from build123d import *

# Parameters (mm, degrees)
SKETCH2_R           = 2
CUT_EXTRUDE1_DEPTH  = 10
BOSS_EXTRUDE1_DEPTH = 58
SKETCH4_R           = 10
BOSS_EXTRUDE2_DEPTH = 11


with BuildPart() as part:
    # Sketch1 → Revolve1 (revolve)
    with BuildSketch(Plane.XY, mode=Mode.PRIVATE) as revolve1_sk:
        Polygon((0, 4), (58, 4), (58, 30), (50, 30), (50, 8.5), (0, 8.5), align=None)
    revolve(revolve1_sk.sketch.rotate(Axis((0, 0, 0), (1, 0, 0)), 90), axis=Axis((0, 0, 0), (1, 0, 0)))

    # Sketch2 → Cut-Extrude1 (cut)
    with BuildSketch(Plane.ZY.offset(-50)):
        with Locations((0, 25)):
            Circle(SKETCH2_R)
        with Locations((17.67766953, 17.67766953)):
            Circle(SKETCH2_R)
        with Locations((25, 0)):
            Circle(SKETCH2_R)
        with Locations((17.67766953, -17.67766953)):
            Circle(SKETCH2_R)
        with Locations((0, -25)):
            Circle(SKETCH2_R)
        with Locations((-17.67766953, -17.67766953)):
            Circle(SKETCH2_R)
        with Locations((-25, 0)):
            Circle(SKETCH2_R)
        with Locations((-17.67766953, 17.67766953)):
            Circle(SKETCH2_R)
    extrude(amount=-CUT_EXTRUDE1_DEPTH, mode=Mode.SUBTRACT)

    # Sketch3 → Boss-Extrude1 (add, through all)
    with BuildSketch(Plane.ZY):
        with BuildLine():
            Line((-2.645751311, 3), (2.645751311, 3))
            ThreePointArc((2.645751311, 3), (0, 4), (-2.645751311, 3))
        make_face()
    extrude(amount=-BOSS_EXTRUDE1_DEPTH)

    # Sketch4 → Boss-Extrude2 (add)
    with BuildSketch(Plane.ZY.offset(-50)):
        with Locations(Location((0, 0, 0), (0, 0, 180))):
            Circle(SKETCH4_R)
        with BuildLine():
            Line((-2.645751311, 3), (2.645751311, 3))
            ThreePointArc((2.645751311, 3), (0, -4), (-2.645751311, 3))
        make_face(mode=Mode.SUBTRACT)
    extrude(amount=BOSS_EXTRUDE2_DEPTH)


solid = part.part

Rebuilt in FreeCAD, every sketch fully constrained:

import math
import FreeCAD as App
import Part
import Sketcher
from FreeCAD import Vector


def add_polygon(sketch, points):
    """Adds a closed chain of lines whose ends are joined by coincident constraints."""
    first, n = sketch.GeometryCount, len(points)
    for a, b in zip(points, points[1:] + points[:1]):
        sketch.addGeometry(Part.LineSegment(App.Vector(*a, 0), App.Vector(*b, 0)), False)
    for i in range(n):
        sketch.addConstraint(Sketcher.Constraint("Coincident", first + i, 2, first + (i + 1) % n, 1))

doc = App.newDocument("Part")
body = doc.addObject("PartDesign::Body", "Body")

# Sketch on XY plane
sketch1 = body.newObject("Sketcher::SketchObject", "Sketch")
sketch1.AttachmentSupport = (doc.getObject("XY_Plane"), [""])
sketch1.MapMode = "FlatFace"
add_polygon(sketch1, [(0, 4), (58, 4), (58, 30), (50, 30), (50, 8.5), (0, 8.5)])  # lines 0-5
sketch1.addConstraint(Sketcher.Constraint("Horizontal", 0))
sketch1.addConstraint(Sketcher.Constraint("Vertical", 1))
sketch1.addConstraint(Sketcher.Constraint("Horizontal", 2))
sketch1.addConstraint(Sketcher.Constraint("Vertical", 3))
sketch1.addConstraint(Sketcher.Constraint("Horizontal", 4))
sketch1.addConstraint(Sketcher.Constraint("Vertical", 5))
sketch1.addConstraint(Sketcher.Constraint("PointOnObject", 4, 2, -2))
sketch1.addConstraint(Sketcher.Constraint("DistanceX", 0, 1, 0, 2, 58.0))
sketch1.addConstraint(Sketcher.Constraint("DistanceX", 2, 2, 2, 1, 8.0))
sketch1.addConstraint(Sketcher.Constraint("DistanceY", 1, 1, 1, 2, 26.0))
sketch1.addConstraint(Sketcher.Constraint("DistanceY", 3, 2, 3, 1, 21.5))
sketch1.addConstraint(Sketcher.Constraint("DistanceY", -1, 1, 0, 2, 4.0))
revolution = body.newObject("PartDesign::Revolution", "Revolution")
revolution.Profile = sketch1
revolution.ReferenceAxis = (sketch1, ["H_Axis"])
revolution.Angle = 360

# Sketch on YZ plane
sketch2 = body.newObject("Sketcher::SketchObject", "Sketch001")
sketch2.AttachmentSupport = (doc.getObject("YZ_Plane"), [""])
sketch2.MapMode = "FlatFace"
sketch2.AttachmentOffset = App.Placement(Vector(0, 0, 50), App.Rotation())
sketch2.addGeometry(Part.Circle(Vector(25, 0, 0), Vector(0, 0, 1), 2), False)
sketch2.addGeometry(Part.Circle(Vector(17.67767, 17.67767, 0), Vector(0, 0, 1), 2), False)
sketch2.addGeometry(Part.Circle(Vector(0, 25, 0), Vector(0, 0, 1), 2), False)
sketch2.addGeometry(Part.Circle(Vector(-17.67767, 17.67767, 0), Vector(0, 0, 1), 2), False)
sketch2.addGeometry(Part.Circle(Vector(-25, 0, 0), Vector(0, 0, 1), 2), False)
sketch2.addGeometry(Part.Circle(Vector(-17.67767, -17.67767, 0), Vector(0, 0, 1), 2), False)
sketch2.addGeometry(Part.Circle(Vector(0, -25, 0), Vector(0, 0, 1), 2), False)
sketch2.addGeometry(Part.Circle(Vector(17.67767, -17.67767, 0), Vector(0, 0, 1), 2), False)
sketch2.addConstraint(Sketcher.Constraint("Equal", 0, 1))
sketch2.addConstraint(Sketcher.Constraint("Equal", 1, 2))
sketch2.addConstraint(Sketcher.Constraint("Equal", 2, 3))
sketch2.addConstraint(Sketcher.Constraint("Equal", 3, 4))
sketch2.addConstraint(Sketcher.Constraint("Equal", 4, 5))
sketch2.addConstraint(Sketcher.Constraint("Equal", 5, 6))
sketch2.addConstraint(Sketcher.Constraint("Equal", 6, 7))
sketch2.addConstraint(Sketcher.Constraint("Symmetric", 0, 3, 4, 3, -1, 1))
sketch2.addConstraint(Sketcher.Constraint("Symmetric", 1, 3, 5, 3, -1, 1))
sketch2.addConstraint(Sketcher.Constraint("Symmetric", 2, 3, 6, 3, -1, 1))
sketch2.addConstraint(Sketcher.Constraint("Symmetric", 3, 3, 7, 3, -1, 1))
sketch2.addConstraint(Sketcher.Constraint("Symmetric", 1, 3, 3, 3, -2))
sketch2.addConstraint(Sketcher.Constraint("PointOnObject", 0, 3, -1))
sketch2.addConstraint(Sketcher.Constraint("PointOnObject", 2, 3, -2))
sketch2.addConstraint(Sketcher.Constraint("Diameter", 0, 4.0))
sketch2.addConstraint(Sketcher.Constraint("DistanceX", -1, 1, 0, 3, 25.0))
sketch2.addConstraint(Sketcher.Constraint("DistanceY", -1, 1, 2, 3, 25.0))
sketch2.addConstraint(Sketcher.Constraint("DistanceX", -1, 1, 1, 3, 17.67767))
sketch2.addConstraint(Sketcher.Constraint("DistanceY", -1, 1, 1, 3, 17.67767))
pocket1 = body.newObject("PartDesign::Pocket", "Pocket")
pocket1.Profile = sketch2
pocket1.Length = 10
pocket1.Reversed = True

# Sketch on YZ plane
sketch3 = body.newObject("Sketcher::SketchObject", "Sketch002")
sketch3.AttachmentSupport = (doc.getObject("YZ_Plane"), [""])
sketch3.MapMode = "FlatFace"
sketch3.addGeometry(Part.LineSegment(Vector(3, -2.645751, 0), Vector(3, 2.645751, 0)), False)
sketch3.addGeometry(Part.ArcOfCircle(Part.Circle(Vector(0, 0, 0), Vector(0, 0, 1), 4), math.radians(-41.409622), math.radians(41.409622)), False)
sketch3.addConstraint(Sketcher.Constraint("Coincident", 0, 1, 1, 1))
sketch3.addConstraint(Sketcher.Constraint("Coincident", 1, 2, 0, 2))
sketch3.addConstraint(Sketcher.Constraint("Vertical", 0))
sketch3.addConstraint(Sketcher.Constraint("Coincident", 1, 3, -1, 1))
sketch3.addConstraint(Sketcher.Constraint("Radius", 1, 4.0))
sketch3.addConstraint(Sketcher.Constraint("DistanceX", -1, 1, 0, 1, 3.0))
pad1 = body.newObject("PartDesign::Pad", "Pad")
pad1.Profile = sketch3
pad1.Length = 58

# Sketch on YZ plane
sketch4 = body.newObject("Sketcher::SketchObject", "Sketch003")
sketch4.AttachmentSupport = (doc.getObject("YZ_Plane"), [""])
sketch4.MapMode = "FlatFace"
sketch4.AttachmentOffset = App.Placement(Vector(0, 0, 50), App.Rotation())
sketch4.addGeometry(Part.Circle(Vector(0, 0, 0), Vector(0, 0, 1), 10), False)
sketch4.addGeometry(Part.ArcOfCircle(Part.Circle(Vector(0, 0, 0), Vector(0, 0, 1), 4), math.radians(41.409622), math.radians(318.590378)), False)
sketch4.addGeometry(Part.LineSegment(Vector(3, -2.645751, 0), Vector(3, 2.645751, 0)), False)
sketch4.addConstraint(Sketcher.Constraint("Coincident", 1, 1, 2, 2))
sketch4.addConstraint(Sketcher.Constraint("Coincident", 2, 1, 1, 2))
sketch4.addConstraint(Sketcher.Constraint("Vertical", 2))
sketch4.addConstraint(Sketcher.Constraint("Coincident", 0, 3, -1, 1))
sketch4.addConstraint(Sketcher.Constraint("Coincident", 1, 3, -1, 1))
sketch4.addConstraint(Sketcher.Constraint("Diameter", 0, 20.0))
sketch4.addConstraint(Sketcher.Constraint("Radius", 1, 4.0))
sketch4.addConstraint(Sketcher.Constraint("DistanceX", -1, 1, 1, 1, 3.0))
pad2 = body.newObject("PartDesign::Pad", "Pad001")
pad2.Profile = sketch4
pad2.Length = 11
pad2.Reversed = True

doc.recompute()
